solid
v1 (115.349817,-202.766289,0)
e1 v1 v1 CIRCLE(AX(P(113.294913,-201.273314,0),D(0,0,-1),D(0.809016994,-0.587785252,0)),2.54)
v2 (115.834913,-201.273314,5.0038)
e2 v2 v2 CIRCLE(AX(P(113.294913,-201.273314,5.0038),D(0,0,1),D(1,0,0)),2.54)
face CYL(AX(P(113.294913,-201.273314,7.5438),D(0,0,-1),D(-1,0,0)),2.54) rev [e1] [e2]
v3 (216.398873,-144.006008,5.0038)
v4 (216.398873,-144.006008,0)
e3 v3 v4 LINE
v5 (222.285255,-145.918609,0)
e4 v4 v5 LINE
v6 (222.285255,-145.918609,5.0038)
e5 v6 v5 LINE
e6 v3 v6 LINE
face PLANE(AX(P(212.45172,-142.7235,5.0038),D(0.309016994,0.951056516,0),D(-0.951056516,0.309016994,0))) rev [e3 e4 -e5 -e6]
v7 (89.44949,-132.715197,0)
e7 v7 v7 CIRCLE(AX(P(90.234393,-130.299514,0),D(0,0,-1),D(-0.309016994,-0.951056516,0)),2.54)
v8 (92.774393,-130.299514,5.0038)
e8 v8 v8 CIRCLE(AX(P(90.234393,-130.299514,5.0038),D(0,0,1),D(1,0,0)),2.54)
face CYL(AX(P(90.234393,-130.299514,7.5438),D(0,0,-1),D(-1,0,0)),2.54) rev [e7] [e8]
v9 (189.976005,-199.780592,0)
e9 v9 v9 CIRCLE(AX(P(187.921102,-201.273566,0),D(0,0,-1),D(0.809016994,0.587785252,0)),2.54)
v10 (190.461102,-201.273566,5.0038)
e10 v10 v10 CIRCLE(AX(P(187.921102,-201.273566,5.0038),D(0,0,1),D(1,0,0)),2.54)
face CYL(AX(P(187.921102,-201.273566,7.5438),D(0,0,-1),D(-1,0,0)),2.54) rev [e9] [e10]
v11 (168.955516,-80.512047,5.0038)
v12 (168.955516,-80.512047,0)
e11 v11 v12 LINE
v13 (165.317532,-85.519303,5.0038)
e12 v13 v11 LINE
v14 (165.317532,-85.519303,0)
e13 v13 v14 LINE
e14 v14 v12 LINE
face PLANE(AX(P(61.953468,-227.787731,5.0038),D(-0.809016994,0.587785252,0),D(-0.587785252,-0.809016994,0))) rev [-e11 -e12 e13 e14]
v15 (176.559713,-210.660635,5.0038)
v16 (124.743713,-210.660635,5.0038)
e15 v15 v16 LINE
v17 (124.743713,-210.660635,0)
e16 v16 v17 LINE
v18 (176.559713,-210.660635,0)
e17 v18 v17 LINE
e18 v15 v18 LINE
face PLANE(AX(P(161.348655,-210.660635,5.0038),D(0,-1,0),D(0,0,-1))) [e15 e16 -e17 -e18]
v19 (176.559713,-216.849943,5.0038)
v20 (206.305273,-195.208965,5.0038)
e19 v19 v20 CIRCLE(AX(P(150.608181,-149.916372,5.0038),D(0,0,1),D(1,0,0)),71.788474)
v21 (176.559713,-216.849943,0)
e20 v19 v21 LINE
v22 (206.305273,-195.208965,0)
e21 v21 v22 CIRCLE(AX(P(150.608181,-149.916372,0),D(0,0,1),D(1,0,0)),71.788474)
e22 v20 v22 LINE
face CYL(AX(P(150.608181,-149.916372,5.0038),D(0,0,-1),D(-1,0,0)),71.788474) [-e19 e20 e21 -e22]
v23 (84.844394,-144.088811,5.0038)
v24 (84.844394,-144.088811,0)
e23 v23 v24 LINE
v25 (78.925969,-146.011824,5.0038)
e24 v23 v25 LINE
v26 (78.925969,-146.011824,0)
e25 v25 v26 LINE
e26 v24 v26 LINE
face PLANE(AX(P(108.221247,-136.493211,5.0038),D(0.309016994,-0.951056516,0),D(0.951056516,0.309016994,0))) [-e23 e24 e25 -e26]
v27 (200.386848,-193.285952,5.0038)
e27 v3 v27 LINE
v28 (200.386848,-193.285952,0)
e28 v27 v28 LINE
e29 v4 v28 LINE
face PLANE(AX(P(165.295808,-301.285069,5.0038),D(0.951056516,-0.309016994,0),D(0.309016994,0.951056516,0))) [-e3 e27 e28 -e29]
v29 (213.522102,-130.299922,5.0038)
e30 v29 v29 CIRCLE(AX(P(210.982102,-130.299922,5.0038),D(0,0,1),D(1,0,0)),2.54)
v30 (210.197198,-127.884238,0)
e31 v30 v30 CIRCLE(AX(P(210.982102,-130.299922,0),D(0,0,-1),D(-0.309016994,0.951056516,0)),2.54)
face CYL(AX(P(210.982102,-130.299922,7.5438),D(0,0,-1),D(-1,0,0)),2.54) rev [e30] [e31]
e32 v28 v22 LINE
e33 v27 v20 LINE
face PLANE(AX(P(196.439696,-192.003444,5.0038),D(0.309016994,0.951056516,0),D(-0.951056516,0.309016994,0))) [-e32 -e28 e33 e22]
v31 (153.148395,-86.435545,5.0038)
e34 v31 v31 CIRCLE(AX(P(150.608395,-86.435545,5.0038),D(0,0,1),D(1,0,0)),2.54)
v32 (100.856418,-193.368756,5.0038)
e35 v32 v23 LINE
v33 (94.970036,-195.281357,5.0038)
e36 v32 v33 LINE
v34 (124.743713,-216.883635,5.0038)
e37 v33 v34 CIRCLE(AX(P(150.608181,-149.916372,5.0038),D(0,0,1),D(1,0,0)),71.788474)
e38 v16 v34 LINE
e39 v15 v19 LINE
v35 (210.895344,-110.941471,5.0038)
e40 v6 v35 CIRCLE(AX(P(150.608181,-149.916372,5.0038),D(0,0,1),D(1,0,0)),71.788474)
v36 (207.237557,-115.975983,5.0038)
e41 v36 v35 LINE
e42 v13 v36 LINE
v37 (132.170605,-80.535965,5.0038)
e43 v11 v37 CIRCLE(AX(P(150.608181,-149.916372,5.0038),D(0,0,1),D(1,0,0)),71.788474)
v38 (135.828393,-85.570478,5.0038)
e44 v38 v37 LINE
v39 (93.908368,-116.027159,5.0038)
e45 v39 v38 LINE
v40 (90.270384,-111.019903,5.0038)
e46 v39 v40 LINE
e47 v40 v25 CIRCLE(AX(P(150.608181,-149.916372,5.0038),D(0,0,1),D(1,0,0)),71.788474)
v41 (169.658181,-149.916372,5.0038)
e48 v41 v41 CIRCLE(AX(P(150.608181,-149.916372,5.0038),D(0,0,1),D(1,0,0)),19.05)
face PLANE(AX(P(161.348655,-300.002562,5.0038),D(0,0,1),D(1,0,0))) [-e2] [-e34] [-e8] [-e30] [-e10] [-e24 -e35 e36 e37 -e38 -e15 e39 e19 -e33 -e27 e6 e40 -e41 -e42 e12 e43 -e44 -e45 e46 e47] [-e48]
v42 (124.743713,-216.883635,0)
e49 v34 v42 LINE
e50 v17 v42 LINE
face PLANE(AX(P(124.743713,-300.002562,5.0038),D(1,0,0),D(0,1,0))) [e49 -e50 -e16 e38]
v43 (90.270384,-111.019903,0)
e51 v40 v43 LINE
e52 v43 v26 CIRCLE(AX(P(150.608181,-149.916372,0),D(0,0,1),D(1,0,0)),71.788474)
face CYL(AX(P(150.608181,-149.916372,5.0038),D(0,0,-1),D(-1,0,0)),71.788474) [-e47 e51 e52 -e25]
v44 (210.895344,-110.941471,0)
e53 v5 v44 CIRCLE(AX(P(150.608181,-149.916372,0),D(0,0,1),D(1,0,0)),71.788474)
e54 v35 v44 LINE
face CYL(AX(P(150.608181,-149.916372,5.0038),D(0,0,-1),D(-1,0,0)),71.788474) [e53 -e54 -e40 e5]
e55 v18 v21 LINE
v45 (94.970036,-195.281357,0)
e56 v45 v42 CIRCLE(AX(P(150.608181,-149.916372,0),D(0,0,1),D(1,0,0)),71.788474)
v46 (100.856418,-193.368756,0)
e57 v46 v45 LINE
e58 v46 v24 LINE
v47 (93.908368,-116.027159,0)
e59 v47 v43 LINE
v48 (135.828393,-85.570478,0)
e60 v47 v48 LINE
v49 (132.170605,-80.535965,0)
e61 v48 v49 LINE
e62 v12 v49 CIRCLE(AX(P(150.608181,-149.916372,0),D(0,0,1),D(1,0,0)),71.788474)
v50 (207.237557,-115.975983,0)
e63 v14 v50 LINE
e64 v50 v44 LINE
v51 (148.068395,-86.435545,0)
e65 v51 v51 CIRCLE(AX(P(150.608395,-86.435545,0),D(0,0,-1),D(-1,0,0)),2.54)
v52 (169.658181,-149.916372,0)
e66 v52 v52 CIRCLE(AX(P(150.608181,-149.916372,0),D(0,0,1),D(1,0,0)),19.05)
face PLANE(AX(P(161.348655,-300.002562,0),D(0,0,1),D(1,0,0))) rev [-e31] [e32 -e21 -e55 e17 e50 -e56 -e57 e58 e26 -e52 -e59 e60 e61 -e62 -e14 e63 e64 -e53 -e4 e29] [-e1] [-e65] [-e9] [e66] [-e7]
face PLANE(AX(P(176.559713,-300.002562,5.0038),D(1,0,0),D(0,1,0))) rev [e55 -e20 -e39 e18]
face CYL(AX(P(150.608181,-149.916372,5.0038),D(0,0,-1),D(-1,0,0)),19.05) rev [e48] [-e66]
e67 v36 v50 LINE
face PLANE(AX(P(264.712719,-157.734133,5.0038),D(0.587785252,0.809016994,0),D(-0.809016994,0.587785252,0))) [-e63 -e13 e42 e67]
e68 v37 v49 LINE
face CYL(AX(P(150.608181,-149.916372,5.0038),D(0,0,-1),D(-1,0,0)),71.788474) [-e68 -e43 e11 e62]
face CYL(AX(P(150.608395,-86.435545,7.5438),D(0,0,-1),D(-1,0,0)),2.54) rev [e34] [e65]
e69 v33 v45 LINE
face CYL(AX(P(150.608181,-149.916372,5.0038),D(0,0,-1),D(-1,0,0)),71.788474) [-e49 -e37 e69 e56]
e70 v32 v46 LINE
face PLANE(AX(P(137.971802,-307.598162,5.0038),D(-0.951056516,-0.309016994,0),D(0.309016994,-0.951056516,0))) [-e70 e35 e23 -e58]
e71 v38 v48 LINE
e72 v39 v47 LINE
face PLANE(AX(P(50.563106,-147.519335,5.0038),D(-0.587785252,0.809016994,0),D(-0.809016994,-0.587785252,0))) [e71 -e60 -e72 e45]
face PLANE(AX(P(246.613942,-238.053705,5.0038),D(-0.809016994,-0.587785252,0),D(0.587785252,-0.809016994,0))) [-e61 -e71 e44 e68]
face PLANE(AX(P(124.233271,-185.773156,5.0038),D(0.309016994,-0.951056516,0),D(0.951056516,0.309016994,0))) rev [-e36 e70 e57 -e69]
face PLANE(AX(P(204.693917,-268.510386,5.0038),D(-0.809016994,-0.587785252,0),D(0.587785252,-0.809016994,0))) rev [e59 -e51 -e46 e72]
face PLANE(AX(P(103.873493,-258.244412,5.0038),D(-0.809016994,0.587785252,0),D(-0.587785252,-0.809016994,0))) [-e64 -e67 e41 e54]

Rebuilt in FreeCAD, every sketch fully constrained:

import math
import FreeCAD as App
import Part
import Sketcher
from FreeCAD import Vector
Q = App.Units.Quantity

doc = App.newDocument("Part")
body = doc.addObject("PartDesign::Body", "Body")

# Sketch on XY plane
sketch1 = body.newObject("Sketcher::SketchObject", "Sketch")
sketch1.AttachmentSupport = (doc.getObject("XY_Plane"), [""])
sketch1.MapMode = "FlatFace"
sketch1.addGeometry([
    Part.LineSegment(Vector(207.237557, -115.975983, 0), Vector(165.317532, -85.519303, 0)),  # 0
    Part.LineSegment(Vector(165.317532, -85.519303, 0), Vector(168.955516, -80.512047, 0)),  # 1
    Part.ArcOfCircle(Part.Circle(Vector(150.608181, -149.916372, 0), Vector(0, 0, 1), 71.788474), math.radians(75.192344), math.radians(104.882166)),  # 2
    Part.LineSegment(Vector(132.170605, -80.535965, 0), Vector(135.828393, -85.570478, 0)),  # 3
    Part.LineSegment(Vector(135.828393, -85.570478, 0), Vector(93.908368, -116.027159, 0)),  # 4
    Part.LineSegment(Vector(93.908368, -116.027159, 0), Vector(90.270384, -111.019903, 0)),  # 5
    Part.ArcOfCircle(Part.Circle(Vector(150.608181, -149.916372, 0), Vector(0, 0, 1), 71.788474), math.radians(147.192344), math.radians(176.882166)),  # 6
    Part.LineSegment(Vector(78.925969, -146.011824, 0), Vector(84.844394, -144.088811, 0)),  # 7
    Part.LineSegment(Vector(84.844394, -144.088811, 0), Vector(100.856418, -193.368756, 0)),  # 8
    Part.LineSegment(Vector(100.856418, -193.368756, 0), Vector(94.970036, -195.281357, 0)),  # 9
    Part.ArcOfCircle(Part.Circle(Vector(150.608181, -149.916372, 0), Vector(0, 0, 1), 71.788474), math.radians(-140.807656), math.radians(-111.117834)),  # 10
    Part.LineSegment(Vector(124.743713, -216.883635, 0), Vector(124.743713, -210.660635, 0)),  # 11
    Part.LineSegment(Vector(124.743713, -210.660635, 0), Vector(176.559713, -210.660635, 0)),  # 12
    Part.LineSegment(Vector(176.559713, -210.660635, 0), Vector(176.559713, -216.849943, 0)),  # 13
    Part.ArcOfCircle(Part.Circle(Vector(150.608181, -149.916372, 0), Vector(0, 0, 1), 71.788474), math.radians(-68.807656), math.radians(-39.117834)),  # 14
    Part.LineSegment(Vector(206.305273, -195.208965, 0), Vector(200.386848, -193.285952, 0)),  # 15
    Part.LineSegment(Vector(200.386848, -193.285952, 0), Vector(216.398873, -144.006008, 0)),  # 16
    Part.LineSegment(Vector(216.398873, -144.006008, 0), Vector(222.285255, -145.918609, 0)),  # 17
    Part.ArcOfCircle(Part.Circle(Vector(150.608181, -149.916372, 0), Vector(0, 0, 1), 71.788474), math.radians(3.192344), math.radians(32.882166)),  # 18
    Part.LineSegment(Vector(210.895344, -110.941471, 0), Vector(207.237557, -115.975983, 0)),  # 19
    Part.Circle(Vector(150.608181, -149.916372, 0), Vector(0, 0, 1), 19.05),  # 20
], False)
sketch1.addConstraint([
    Sketcher.Constraint("Coincident", 0, 2, 1, 1),
    Sketcher.Constraint("Coincident", 1, 2, 2, 1),
    Sketcher.Constraint("Coincident", 2, 2, 3, 1),
    Sketcher.Constraint("Coincident", 3, 2, 4, 1),
    Sketcher.Constraint("Coincident", 4, 2, 5, 1),
    Sketcher.Constraint("Coincident", 5, 2, 6, 1),
    Sketcher.Constraint("Coincident", 6, 2, 7, 1),
    Sketcher.Constraint("Coincident", 7, 2, 8, 1),
    Sketcher.Constraint("Coincident", 8, 2, 9, 1),
    Sketcher.Constraint("Coincident", 9, 2, 10, 1),
    Sketcher.Constraint("Coincident", 10, 2, 11, 1),
    Sketcher.Constraint("Coincident", 11, 2, 12, 1),
    Sketcher.Constraint("Coincident", 12, 2, 13, 1),
    Sketcher.Constraint("Coincident", 13, 2, 14, 1),
    Sketcher.Constraint("Coincident", 14, 2, 15, 1),
    Sketcher.Constraint("Coincident", 15, 2, 16, 1),
    Sketcher.Constraint("Coincident", 16, 2, 17, 1),
    Sketcher.Constraint("Coincident", 17, 2, 18, 1),
    Sketcher.Constraint("Coincident", 18, 2, 19, 1),
    Sketcher.Constraint("Coincident", 19, 2, 0, 1),
    Sketcher.Constraint("Vertical", 11),
    Sketcher.Constraint("Horizontal", 12),
    Sketcher.Constraint("Vertical", 13),
    Sketcher.Constraint("Coincident", 6, 3, 2, 3),
    Sketcher.Constraint("Coincident", 10, 3, 2, 3),
    Sketcher.Constraint("Coincident", 14, 3, 2, 3),
    Sketcher.Constraint("Coincident", 18, 3, 2, 3),
    Sketcher.Constraint("Coincident", 20, 3, 2, 3),
    Sketcher.Constraint("Equal", 2, 6),
    Sketcher.Constraint("Equal", 6, 10),
    Sketcher.Constraint("Equal", 10, 14),
    Sketcher.Constraint("Equal", 14, 18),
    Sketcher.Constraint("Perpendicular", 0, 1),
    Sketcher.Constraint("Perpendicular", 3, 4),
    Sketcher.Constraint("Perpendicular", 4, 5),
    Sketcher.Constraint("Perpendicular", 7, 8),
    Sketcher.Constraint("Perpendicular", 8, 9),
    Sketcher.Constraint("Perpendicular", 15, 16),
    Sketcher.Constraint("Perpendicular", 16, 17),
    Sketcher.Constraint("Parallel", 1, 19),
    Sketcher.Constraint("Equal", 0, 4),
    Sketcher.Constraint("Equal", 1, 5),
    Sketcher.Constraint("Equal", 3, 7),
    Sketcher.Constraint("Equal", 4, 8),
    Sketcher.Constraint("Equal", 5, 9),
    Sketcher.Constraint("Equal", 7, 15),
    Sketcher.Constraint("Equal", 8, 16),
    Sketcher.Constraint("Equal", 9, 17),
    Sketcher.Constraint("Equal", 15, 19),
    Sketcher.Constraint("Diameter", 20, Q("1.5 in")),
    Sketcher.Constraint("Angle", 0, Q("144 deg")),
    Sketcher.Constraint("Angle", 3, Q("-54 deg")),
    Sketcher.Constraint("Angle", 7, Q("18 deg")),
    Sketcher.Constraint("Angle", 15, Q("162 deg")),
    Sketcher.Constraint("DistanceX", 12, 1, 12, 2, Q("2.04 in")),
    Sketcher.Constraint("Distance", 0, Q("2.04 in")),
    Sketcher.Constraint("DistanceY", 11, 1, 11, 2, Q("0.245 in")),
    Sketcher.Constraint("Distance", 3, Q("0.245 in")),
    Sketcher.Constraint("Radius", 2, 71.788474),
    Sketcher.Constraint("DistanceY", 13, 2, 13, 1, 6.189308),
    Sketcher.Constraint("DistanceX", 6, 2, 4, 2, 14.982399),
    Sketcher.Constraint("DistanceX", -1, 1, 2, 3, 150.608181),
    Sketcher.Constraint("DistanceY", 3, 2, -1, 1, 85.570478),
])
pad1 = body.newObject("PartDesign::Pad", "Pad")
pad1.Profile = sketch1
pad1.Length = Q("0.197 in")

# Sketch on XY plane
sketch2 = body.newObject("Sketcher::SketchObject", "Sketch001")
sketch2.AttachmentSupport = (doc.getObject("XY_Plane"), [""])
sketch2.MapMode = "FlatFace"
sketch2.addGeometry(Part.Circle(Vector(150.608395, -86.435545, 0), Vector(0, 0, 1), 2.54), False)
sketch2.addConstraint([
    Sketcher.Constraint("Diameter", 0, Q("0.2 in")),
    Sketcher.Constraint("DistanceX", -1, 1, 0, 3, 150.608395),
    Sketcher.Constraint("DistanceY", 0, 3, -1, 1, 86.435545),
])
pocket1 = body.newObject("PartDesign::Pocket", "Pocket")
pocket1.Profile = sketch2
pocket1.Length = Q("0.297 in")
pocket1.Reversed = True
doc.recompute()

datumline = body.newObject("PartDesign::Line", "DatumLine")
datumline.Placement = App.Placement(Vector(150.608181, -149.916372, 0), App.Rotation(Vector(0, 0, 1), Vector(0, 0, 1)))
polarpattern = body.newObject("PartDesign::PolarPattern", "PolarPattern")
polarpattern.Originals = [pocket1]
polarpattern.Axis = (datumline, [""])
polarpattern.Angle = 360
polarpattern.Occurrences = 5
body.Tip = polarpattern

doc.recompute()
